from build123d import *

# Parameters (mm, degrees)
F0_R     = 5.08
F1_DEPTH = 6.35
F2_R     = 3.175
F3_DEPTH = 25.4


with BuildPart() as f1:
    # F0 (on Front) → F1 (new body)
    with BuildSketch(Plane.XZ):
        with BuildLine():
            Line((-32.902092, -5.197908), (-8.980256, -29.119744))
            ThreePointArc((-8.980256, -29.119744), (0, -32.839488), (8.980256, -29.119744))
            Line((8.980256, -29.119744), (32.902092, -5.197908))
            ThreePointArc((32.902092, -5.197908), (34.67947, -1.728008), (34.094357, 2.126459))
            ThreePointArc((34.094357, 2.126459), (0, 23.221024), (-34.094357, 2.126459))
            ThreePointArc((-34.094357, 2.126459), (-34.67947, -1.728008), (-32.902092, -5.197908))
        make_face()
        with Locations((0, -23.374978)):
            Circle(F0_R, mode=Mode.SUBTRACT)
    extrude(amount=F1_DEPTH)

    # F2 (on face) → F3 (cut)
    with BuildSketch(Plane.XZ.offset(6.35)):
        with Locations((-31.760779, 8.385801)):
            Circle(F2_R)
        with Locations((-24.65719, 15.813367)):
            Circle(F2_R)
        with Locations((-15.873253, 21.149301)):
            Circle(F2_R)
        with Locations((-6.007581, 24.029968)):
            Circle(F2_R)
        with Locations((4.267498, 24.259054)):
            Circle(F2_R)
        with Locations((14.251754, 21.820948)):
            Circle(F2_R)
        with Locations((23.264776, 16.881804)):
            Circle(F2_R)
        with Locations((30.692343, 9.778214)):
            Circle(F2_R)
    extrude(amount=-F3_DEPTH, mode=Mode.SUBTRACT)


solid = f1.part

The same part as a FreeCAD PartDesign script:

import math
import FreeCAD as App
import Part
import Sketcher

V = App.Vector
Q = App.Units.Quantity

doc = App.newDocument("Part")
body = doc.addObject("PartDesign::Body", "Body")

# Sketch on XZ plane
sketch1 = body.newObject("Sketcher::SketchObject", "Sketch")
sketch1.AttachmentSupport = (doc.getObject("XZ_Plane"), [""])
sketch1.MapMode = "FlatFace"
sketch1.addGeometry(Part.LineSegment(V(-33, -5, 0), V(-9, -29, 0)), False)
sketch1.addGeometry(Part.ArcOfCircle(Part.Circle(V(0, -20, 0), V(0, 0, 1), 13), math.radians(-135), math.radians(-45)), False)
sketch1.addGeometry(Part.LineSegment(V(9, -29, 0), V(33, -5, 0)), False)
sketch1.addGeometry(Part.ArcOfCircle(Part.Circle(V(28, -1, 0), V(0, 0, 1), 6), math.radians(-45), math.radians(27)), False)
sketch1.addGeometry(Part.ArcOfCircle(Part.Circle(V(0, -15, 0), V(0, 0, 1), 38), math.radians(27), math.radians(153)), False)
sketch1.addGeometry(Part.ArcOfCircle(Part.Circle(V(-28, -1, 0), V(0, 0, 1), 6), math.radians(153), math.radians(225)), False)
sketch1.addGeometry(Part.Circle(V(0, -23, 0), V(0, 0, 1), 5), False)
sketch1.addConstraint(Sketcher.Constraint("Tangent", 0, 2, 1, 1))
sketch1.addConstraint(Sketcher.Constraint("Tangent", 1, 2, 2, 1))
sketch1.addConstraint(Sketcher.Constraint("Tangent", 2, 2, 3, 1))
sketch1.addConstraint(Sketcher.Constraint("Tangent", 3, 2, 4, 1))
sketch1.addConstraint(Sketcher.Constraint("Tangent", 4, 2, 5, 1))
sketch1.addConstraint(Sketcher.Constraint("Tangent", 5, 2, 0, 1))
sketch1.addConstraint(Sketcher.Constraint("Equal", 3, 5))
sketch1.addConstraint(Sketcher.Constraint("Symmetric", 3, 3, 5, 3, -2))
sketch1.addConstraint(Sketcher.Constraint("PointOnObject", 1, 3, -2))
sketch1.addConstraint(Sketcher.Constraint("PointOnObject", 6, 3, -2))
sketch1.addConstraint(Sketcher.Constraint("Perpendicular", 0, 2))
sketch1.addConstraint(Sketcher.Constraint("Diameter", 6, Q("0.4 in")))
sketch1.addConstraint(Sketcher.Constraint("Radius", 1, Q("0.5 in")))
sketch1.addConstraint(Sketcher.Constraint("Radius", 4, Q("1.5 in")))
sketch1.addConstraint(Sketcher.Constraint("Radius", 3, Q("0.25 in")))
sketch1.addConstraint(Sketcher.Constraint("DistanceY", 6, 3, 3, 3, Q("22.667198 mm")))
sketch1.addConstraint(Sketcher.Constraint("DistanceX", 1, 2, 3, 2, Q("25.114101 mm")))
sketch1.addConstraint(Sketcher.Constraint("DistanceY", 1, 3, -1, 1, Q("20.139489 mm")))
pad1 = body.newObject("PartDesign::Pad", "Pad")
pad1.Profile = sketch1
pad1.Length = Q("0.25 in")

# Sketch on XZ plane
sketch2 = body.newObject("Sketcher::SketchObject", "Sketch001")
sketch2.AttachmentSupport = (doc.getObject("XZ_Plane"), [""])
sketch2.MapMode = "FlatFace"
sketch2.AttachmentOffset = App.Placement(V(0, 0, 0.25 * 25.4), App.Rotation())
sketch2.addGeometry(Part.Circle(V(-31.8, 8.4, 0), V(0, 0, 1), 3.2), False)
sketch2.addGeometry(Part.Circle(V(-24.7, 15.8, 0), V(0, 0, 1), 3.2), False)
sketch2.addGeometry(Part.Circle(V(-15.9, 21.1, 0), V(0, 0, 1), 3.2), False)
sketch2.addGeometry(Part.Circle(V(-6, 24, 0), V(0, 0, 1), 3.2), False)
sketch2.addGeometry(Part.Circle(V(4.3, 24.3, 0), V(0, 0, 1), 3.2), False)
sketch2.addGeometry(Part.Circle(V(14.3, 21.8, 0), V(0, 0, 1), 3.2), False)
sketch2.addGeometry(Part.Circle(V(23.3, 16.9, 0), V(0, 0, 1), 3.2), False)
sketch2.addGeometry(Part.Circle(V(30.7, 9.8, 0), V(0, 0, 1), 3.2), False)
sketch2.addConstraint(Sketcher.Constraint("Equal", 0, 1))
sketch2.addConstraint(Sketcher.Constraint("Equal", 1, 2))
sketch2.addConstraint(Sketcher.Constraint("Equal", 2, 3))
sketch2.addConstraint(Sketcher.Constraint("Equal", 3, 4))
sketch2.addConstraint(Sketcher.Constraint("Equal", 4, 5))
sketch2.addConstraint(Sketcher.Constraint("Equal", 5, 6))
sketch2.addConstraint(Sketcher.Constraint("Equal", 6, 7))
sketch2.addConstraint(Sketcher.Constraint("Diameter", 0, Q("0.25 in")))
sketch2.addConstraint(Sketcher.Constraint("DistanceY", 0, 3, 2, 3, Q("0.5025 in")))
sketch2.addConstraint(Sketcher.Constraint("DistanceY", -1, 1, 0, 3, Q("8.385801 mm")))
sketch2.addConstraint(Sketcher.Constraint("DistanceY", 1, 3, 3, 3, Q("8.216601 mm")))
sketch2.addConstraint(Sketcher.Constraint("DistanceX", 0, 3, -1, 1, Q("31.760779 mm")))
sketch2.addConstraint(Sketcher.Constraint("DistanceX", 1, 3, -1, 1, Q("24.65719 mm")))
sketch2.addConstraint(Sketcher.Constraint("DistanceX", 3, 3, -1, 1, Q("6.007581 mm")))
sketch2.addConstraint(Sketcher.Constraint("DistanceY", -1, 1, 3, 3, Q("24.029968 mm")))
sketch2.addConstraint(Sketcher.Constraint("DistanceY", -1, 1, 5, 3, Q("21.820948 mm")))
sketch2.addConstraint(Sketcher.Constraint("DistanceX", 3, 3, 4, 3, Q("10.275079 mm")))
sketch2.addConstraint(Sketcher.Constraint("DistanceX", 2, 3, 4, 3, Q("20.140751 mm")))
sketch2.addConstraint(Sketcher.Constraint("DistanceX", 4, 3, 6, 3, Q("18.997278 mm")))
sketch2.addConstraint(Sketcher.Constraint("DistanceY", 6, 3, 4, 3, Q("7.37725 mm")))
sketch2.addConstraint(Sketcher.Constraint("DistanceY", 7, 3, 6, 3, Q("7.10359 mm")))
sketch2.addConstraint(Sketcher.Constraint("DistanceX", 5, 3, 7, 3, Q("16.440589 mm")))
sketch2.addConstraint(Sketcher.Constraint("DistanceY", -1, 1, 4, 3, Q("24.259054 mm")))
sketch2.addConstraint(Sketcher.Constraint("DistanceX", -1, 1, 5, 3, Q("14.251754 mm")))
pocket1 = body.newObject("PartDesign::Pocket", "Pocket")
pocket1.Profile = sketch2
pocket1.Length = Q("1 in")

doc.recompute()
